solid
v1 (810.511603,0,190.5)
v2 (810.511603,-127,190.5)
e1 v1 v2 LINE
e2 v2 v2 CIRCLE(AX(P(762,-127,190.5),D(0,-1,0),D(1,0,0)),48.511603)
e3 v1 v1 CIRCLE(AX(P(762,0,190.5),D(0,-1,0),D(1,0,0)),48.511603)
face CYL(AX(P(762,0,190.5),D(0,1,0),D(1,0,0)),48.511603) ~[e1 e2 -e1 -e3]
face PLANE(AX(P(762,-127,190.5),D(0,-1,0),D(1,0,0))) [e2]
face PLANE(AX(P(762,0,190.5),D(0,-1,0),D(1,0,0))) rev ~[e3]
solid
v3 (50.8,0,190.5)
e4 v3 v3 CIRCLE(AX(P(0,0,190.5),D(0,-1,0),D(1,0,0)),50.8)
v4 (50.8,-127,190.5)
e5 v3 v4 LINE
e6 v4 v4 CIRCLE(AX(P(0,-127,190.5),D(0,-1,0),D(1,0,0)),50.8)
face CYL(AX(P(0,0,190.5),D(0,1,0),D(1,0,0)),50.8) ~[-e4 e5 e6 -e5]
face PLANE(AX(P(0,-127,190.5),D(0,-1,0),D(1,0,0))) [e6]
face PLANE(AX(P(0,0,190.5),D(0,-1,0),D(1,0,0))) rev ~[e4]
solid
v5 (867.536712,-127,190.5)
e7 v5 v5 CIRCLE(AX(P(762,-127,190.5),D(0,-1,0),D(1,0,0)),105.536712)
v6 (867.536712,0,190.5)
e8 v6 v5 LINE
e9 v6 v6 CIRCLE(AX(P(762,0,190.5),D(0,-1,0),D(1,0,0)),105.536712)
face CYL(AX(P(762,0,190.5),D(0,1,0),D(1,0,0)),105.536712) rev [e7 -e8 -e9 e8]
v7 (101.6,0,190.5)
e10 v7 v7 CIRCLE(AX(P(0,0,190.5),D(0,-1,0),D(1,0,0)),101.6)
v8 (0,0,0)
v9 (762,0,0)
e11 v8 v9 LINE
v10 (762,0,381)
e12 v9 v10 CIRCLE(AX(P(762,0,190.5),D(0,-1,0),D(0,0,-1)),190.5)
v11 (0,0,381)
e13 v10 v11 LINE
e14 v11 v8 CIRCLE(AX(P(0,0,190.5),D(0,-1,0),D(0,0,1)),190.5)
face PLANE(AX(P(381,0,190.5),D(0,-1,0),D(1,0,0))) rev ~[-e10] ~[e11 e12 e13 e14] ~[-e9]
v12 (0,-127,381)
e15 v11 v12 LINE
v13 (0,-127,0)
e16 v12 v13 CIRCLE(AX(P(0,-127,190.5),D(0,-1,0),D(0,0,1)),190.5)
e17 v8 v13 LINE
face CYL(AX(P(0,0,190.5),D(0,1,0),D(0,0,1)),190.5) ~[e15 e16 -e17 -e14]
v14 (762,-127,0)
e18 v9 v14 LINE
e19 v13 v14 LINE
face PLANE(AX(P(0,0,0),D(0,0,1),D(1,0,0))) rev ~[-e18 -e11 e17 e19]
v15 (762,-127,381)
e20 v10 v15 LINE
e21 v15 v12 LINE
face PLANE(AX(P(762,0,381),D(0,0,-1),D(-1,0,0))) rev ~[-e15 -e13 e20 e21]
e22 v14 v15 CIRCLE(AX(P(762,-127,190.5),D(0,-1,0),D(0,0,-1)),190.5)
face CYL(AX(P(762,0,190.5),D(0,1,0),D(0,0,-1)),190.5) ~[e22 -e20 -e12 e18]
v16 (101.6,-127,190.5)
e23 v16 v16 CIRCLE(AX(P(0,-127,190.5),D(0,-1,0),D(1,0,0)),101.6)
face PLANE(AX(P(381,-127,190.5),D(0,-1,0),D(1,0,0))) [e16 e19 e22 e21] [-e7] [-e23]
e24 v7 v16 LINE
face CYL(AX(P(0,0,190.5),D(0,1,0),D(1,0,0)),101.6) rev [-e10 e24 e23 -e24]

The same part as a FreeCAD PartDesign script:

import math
import FreeCAD as App
import Part
import Sketcher
from FreeCAD import Vector
Q = App.Units.Quantity

doc = App.newDocument("Part")
body = doc.addObject("PartDesign::Body", "Body")
body.AllowCompound = True

# Sketch on XZ plane
sketch1 = body.newObject("Sketcher::SketchObject", "Sketch")
sketch1.AttachmentSupport = (doc.getObject("XZ_Plane"), [""])
sketch1.MapMode = "FlatFace"
sketch1.addGeometry(Part.ArcOfCircle(Part.Circle(Vector(0, 190, 0), Vector(0, 0, 1), 190), math.radians(90), math.radians(270)), False)
sketch1.addGeometry(Part.LineSegment(Vector(0, 0, 0), Vector(762, 0, 0)), False)
sketch1.addGeometry(Part.ArcOfCircle(Part.Circle(Vector(762, 190, 0), Vector(0, 0, 1), 190), math.radians(-90), math.radians(90)), False)
sketch1.addGeometry(Part.LineSegment(Vector(762, 381, 0), Vector(0, 381, 0)), False)
sketch1.addGeometry(Part.Circle(Vector(0, 190, 0), Vector(0, 0, 1), 102), False)
sketch1.addGeometry(Part.Circle(Vector(762, 190, 0), Vector(0, 0, 1), 106), False)
sketch1.addGeometry(Part.Circle(Vector(0, 190, 0), Vector(0, 0, 1), 51), False)
sketch1.addGeometry(Part.Circle(Vector(762, 190, 0), Vector(0, 0, 1), 49), False)
sketch1.addConstraint(Sketcher.Constraint("Tangent", 0, 2, 1, 1))
sketch1.addConstraint(Sketcher.Constraint("Tangent", 1, 2, 2, 1))
sketch1.addConstraint(Sketcher.Constraint("Tangent", 2, 2, 3, 1))
sketch1.addConstraint(Sketcher.Constraint("Tangent", 3, 2, 0, 1))
sketch1.addConstraint(Sketcher.Constraint("Horizontal", 1))
sketch1.addConstraint(Sketcher.Constraint("Horizontal", 3))
sketch1.addConstraint(Sketcher.Constraint("Coincident", 0, 2, -1, 1))
sketch1.addConstraint(Sketcher.Constraint("Coincident", 4, 3, 0, 3))
sketch1.addConstraint(Sketcher.Constraint("Coincident", 5, 3, 2, 3))
sketch1.addConstraint(Sketcher.Constraint("Coincident", 6, 3, 0, 3))
sketch1.addConstraint(Sketcher.Constraint("Coincident", 7, 3, 2, 3))
sketch1.addConstraint(Sketcher.Constraint("Diameter", 4, Q("8 in")))
sketch1.addConstraint(Sketcher.Constraint("Diameter", 6, Q("4 in")))
sketch1.addConstraint(Sketcher.Constraint("Radius", 0, Q("7.5 in")))
sketch1.addConstraint(Sketcher.Constraint("DistanceX", 1, 1, 1, 2, Q("30 in")))
sketch1.addConstraint(Sketcher.Constraint("Diameter", 5, Q("211.073424 mm")))
sketch1.addConstraint(Sketcher.Constraint("Diameter", 7, Q("97.023206 mm")))
pad1 = body.newObject("PartDesign::Pad", "Pad")
pad1.Profile = sketch1
pad1.Length = Q("5 in")

doc.recompute()
